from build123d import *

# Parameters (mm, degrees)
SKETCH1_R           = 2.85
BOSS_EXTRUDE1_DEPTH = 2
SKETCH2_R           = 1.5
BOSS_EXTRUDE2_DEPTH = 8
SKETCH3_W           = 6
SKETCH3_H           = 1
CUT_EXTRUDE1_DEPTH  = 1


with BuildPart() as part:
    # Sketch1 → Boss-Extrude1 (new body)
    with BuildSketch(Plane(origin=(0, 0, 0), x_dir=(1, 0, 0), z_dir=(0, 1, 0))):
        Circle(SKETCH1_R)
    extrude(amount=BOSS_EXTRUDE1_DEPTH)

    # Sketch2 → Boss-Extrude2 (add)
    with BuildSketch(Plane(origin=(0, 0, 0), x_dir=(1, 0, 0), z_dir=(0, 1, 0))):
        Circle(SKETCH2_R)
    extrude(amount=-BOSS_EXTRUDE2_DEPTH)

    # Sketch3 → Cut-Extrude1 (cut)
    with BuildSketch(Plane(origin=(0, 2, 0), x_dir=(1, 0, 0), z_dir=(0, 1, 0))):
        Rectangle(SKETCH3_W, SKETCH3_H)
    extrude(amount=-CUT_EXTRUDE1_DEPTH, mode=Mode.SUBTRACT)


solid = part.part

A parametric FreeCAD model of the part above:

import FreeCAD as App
import Part
import Sketcher

V = App.Vector


def add_polygon(sketch, points):
    """Adds a closed chain of lines whose ends are joined by coincident constraints."""
    first, n = sketch.GeometryCount, len(points)
    for a, b in zip(points, points[1:] + points[:1]):
        sketch.addGeometry(Part.LineSegment(App.Vector(*a, 0), App.Vector(*b, 0)), False)
    for i in range(n):
        sketch.addConstraint(Sketcher.Constraint("Coincident", first + i, 2, first + (i + 1) % n, 1))

doc = App.newDocument("Part")
body = doc.addObject("PartDesign::Body", "Body")

# Sketch on XZ plane
sketch1 = body.newObject("Sketcher::SketchObject", "Sketch")
sketch1.AttachmentSupport = (doc.getObject("XZ_Plane"), [""])
sketch1.MapMode = "FlatFace"
sketch1.addGeometry(Part.Circle(V(0, 0, 0), V(0, 0, 1), 2.9), False)
sketch1.addConstraint(Sketcher.Constraint("Coincident", 0, 3, -1, 1))
sketch1.addConstraint(Sketcher.Constraint("Diameter", 0, 5.7))
pad1 = body.newObject("PartDesign::Pad", "Pad")
pad1.Profile = sketch1
pad1.Length = 2
pad1.Reversed = True

# Sketch on XZ plane
sketch2 = body.newObject("Sketcher::SketchObject", "Sketch001")
sketch2.AttachmentSupport = (doc.getObject("XZ_Plane"), [""])
sketch2.MapMode = "FlatFace"
sketch2.addGeometry(Part.Circle(V(0, 0, 0), V(0, 0, 1), 1.5), False)
sketch2.addConstraint(Sketcher.Constraint("Coincident", 0, 3, -1, 1))
sketch2.addConstraint(Sketcher.Constraint("Diameter", 0, 3.0))
pad2 = body.newObject("PartDesign::Pad", "Pad001")
pad2.Profile = sketch2
pad2.Length = 8

# Sketch on XZ plane
sketch3 = body.newObject("Sketcher::SketchObject", "Sketch002")
sketch3.AttachmentSupport = (doc.getObject("XZ_Plane"), [""])
sketch3.MapMode = "FlatFace"
sketch3.AttachmentOffset = App.Placement(V(0, 0, -2), App.Rotation())
add_polygon(sketch3, [(-3, -0.5), (-3, 0.5), (3, 0.5), (3, -0.5)])  # lines 0-3
sketch3.addConstraint(Sketcher.Constraint("Vertical", 0))
sketch3.addConstraint(Sketcher.Constraint("Horizontal", 1))
sketch3.addConstraint(Sketcher.Constraint("Vertical", 2))
sketch3.addConstraint(Sketcher.Constraint("Horizontal", 3))
sketch3.addConstraint(Sketcher.Constraint("Symmetric", 0, 2, 2, 2, -1, 1))
sketch3.addConstraint(Sketcher.Constraint("DistanceX", 1, 1, 1, 2, 6.0))
sketch3.addConstraint(Sketcher.Constraint("DistanceY", 0, 1, 0, 2, 1.0))
pocket1 = body.newObject("PartDesign::Pocket", "Pocket")
pocket1.Profile = sketch3
pocket1.Length = 1
pocket1.Reversed = True

doc.recompute()
